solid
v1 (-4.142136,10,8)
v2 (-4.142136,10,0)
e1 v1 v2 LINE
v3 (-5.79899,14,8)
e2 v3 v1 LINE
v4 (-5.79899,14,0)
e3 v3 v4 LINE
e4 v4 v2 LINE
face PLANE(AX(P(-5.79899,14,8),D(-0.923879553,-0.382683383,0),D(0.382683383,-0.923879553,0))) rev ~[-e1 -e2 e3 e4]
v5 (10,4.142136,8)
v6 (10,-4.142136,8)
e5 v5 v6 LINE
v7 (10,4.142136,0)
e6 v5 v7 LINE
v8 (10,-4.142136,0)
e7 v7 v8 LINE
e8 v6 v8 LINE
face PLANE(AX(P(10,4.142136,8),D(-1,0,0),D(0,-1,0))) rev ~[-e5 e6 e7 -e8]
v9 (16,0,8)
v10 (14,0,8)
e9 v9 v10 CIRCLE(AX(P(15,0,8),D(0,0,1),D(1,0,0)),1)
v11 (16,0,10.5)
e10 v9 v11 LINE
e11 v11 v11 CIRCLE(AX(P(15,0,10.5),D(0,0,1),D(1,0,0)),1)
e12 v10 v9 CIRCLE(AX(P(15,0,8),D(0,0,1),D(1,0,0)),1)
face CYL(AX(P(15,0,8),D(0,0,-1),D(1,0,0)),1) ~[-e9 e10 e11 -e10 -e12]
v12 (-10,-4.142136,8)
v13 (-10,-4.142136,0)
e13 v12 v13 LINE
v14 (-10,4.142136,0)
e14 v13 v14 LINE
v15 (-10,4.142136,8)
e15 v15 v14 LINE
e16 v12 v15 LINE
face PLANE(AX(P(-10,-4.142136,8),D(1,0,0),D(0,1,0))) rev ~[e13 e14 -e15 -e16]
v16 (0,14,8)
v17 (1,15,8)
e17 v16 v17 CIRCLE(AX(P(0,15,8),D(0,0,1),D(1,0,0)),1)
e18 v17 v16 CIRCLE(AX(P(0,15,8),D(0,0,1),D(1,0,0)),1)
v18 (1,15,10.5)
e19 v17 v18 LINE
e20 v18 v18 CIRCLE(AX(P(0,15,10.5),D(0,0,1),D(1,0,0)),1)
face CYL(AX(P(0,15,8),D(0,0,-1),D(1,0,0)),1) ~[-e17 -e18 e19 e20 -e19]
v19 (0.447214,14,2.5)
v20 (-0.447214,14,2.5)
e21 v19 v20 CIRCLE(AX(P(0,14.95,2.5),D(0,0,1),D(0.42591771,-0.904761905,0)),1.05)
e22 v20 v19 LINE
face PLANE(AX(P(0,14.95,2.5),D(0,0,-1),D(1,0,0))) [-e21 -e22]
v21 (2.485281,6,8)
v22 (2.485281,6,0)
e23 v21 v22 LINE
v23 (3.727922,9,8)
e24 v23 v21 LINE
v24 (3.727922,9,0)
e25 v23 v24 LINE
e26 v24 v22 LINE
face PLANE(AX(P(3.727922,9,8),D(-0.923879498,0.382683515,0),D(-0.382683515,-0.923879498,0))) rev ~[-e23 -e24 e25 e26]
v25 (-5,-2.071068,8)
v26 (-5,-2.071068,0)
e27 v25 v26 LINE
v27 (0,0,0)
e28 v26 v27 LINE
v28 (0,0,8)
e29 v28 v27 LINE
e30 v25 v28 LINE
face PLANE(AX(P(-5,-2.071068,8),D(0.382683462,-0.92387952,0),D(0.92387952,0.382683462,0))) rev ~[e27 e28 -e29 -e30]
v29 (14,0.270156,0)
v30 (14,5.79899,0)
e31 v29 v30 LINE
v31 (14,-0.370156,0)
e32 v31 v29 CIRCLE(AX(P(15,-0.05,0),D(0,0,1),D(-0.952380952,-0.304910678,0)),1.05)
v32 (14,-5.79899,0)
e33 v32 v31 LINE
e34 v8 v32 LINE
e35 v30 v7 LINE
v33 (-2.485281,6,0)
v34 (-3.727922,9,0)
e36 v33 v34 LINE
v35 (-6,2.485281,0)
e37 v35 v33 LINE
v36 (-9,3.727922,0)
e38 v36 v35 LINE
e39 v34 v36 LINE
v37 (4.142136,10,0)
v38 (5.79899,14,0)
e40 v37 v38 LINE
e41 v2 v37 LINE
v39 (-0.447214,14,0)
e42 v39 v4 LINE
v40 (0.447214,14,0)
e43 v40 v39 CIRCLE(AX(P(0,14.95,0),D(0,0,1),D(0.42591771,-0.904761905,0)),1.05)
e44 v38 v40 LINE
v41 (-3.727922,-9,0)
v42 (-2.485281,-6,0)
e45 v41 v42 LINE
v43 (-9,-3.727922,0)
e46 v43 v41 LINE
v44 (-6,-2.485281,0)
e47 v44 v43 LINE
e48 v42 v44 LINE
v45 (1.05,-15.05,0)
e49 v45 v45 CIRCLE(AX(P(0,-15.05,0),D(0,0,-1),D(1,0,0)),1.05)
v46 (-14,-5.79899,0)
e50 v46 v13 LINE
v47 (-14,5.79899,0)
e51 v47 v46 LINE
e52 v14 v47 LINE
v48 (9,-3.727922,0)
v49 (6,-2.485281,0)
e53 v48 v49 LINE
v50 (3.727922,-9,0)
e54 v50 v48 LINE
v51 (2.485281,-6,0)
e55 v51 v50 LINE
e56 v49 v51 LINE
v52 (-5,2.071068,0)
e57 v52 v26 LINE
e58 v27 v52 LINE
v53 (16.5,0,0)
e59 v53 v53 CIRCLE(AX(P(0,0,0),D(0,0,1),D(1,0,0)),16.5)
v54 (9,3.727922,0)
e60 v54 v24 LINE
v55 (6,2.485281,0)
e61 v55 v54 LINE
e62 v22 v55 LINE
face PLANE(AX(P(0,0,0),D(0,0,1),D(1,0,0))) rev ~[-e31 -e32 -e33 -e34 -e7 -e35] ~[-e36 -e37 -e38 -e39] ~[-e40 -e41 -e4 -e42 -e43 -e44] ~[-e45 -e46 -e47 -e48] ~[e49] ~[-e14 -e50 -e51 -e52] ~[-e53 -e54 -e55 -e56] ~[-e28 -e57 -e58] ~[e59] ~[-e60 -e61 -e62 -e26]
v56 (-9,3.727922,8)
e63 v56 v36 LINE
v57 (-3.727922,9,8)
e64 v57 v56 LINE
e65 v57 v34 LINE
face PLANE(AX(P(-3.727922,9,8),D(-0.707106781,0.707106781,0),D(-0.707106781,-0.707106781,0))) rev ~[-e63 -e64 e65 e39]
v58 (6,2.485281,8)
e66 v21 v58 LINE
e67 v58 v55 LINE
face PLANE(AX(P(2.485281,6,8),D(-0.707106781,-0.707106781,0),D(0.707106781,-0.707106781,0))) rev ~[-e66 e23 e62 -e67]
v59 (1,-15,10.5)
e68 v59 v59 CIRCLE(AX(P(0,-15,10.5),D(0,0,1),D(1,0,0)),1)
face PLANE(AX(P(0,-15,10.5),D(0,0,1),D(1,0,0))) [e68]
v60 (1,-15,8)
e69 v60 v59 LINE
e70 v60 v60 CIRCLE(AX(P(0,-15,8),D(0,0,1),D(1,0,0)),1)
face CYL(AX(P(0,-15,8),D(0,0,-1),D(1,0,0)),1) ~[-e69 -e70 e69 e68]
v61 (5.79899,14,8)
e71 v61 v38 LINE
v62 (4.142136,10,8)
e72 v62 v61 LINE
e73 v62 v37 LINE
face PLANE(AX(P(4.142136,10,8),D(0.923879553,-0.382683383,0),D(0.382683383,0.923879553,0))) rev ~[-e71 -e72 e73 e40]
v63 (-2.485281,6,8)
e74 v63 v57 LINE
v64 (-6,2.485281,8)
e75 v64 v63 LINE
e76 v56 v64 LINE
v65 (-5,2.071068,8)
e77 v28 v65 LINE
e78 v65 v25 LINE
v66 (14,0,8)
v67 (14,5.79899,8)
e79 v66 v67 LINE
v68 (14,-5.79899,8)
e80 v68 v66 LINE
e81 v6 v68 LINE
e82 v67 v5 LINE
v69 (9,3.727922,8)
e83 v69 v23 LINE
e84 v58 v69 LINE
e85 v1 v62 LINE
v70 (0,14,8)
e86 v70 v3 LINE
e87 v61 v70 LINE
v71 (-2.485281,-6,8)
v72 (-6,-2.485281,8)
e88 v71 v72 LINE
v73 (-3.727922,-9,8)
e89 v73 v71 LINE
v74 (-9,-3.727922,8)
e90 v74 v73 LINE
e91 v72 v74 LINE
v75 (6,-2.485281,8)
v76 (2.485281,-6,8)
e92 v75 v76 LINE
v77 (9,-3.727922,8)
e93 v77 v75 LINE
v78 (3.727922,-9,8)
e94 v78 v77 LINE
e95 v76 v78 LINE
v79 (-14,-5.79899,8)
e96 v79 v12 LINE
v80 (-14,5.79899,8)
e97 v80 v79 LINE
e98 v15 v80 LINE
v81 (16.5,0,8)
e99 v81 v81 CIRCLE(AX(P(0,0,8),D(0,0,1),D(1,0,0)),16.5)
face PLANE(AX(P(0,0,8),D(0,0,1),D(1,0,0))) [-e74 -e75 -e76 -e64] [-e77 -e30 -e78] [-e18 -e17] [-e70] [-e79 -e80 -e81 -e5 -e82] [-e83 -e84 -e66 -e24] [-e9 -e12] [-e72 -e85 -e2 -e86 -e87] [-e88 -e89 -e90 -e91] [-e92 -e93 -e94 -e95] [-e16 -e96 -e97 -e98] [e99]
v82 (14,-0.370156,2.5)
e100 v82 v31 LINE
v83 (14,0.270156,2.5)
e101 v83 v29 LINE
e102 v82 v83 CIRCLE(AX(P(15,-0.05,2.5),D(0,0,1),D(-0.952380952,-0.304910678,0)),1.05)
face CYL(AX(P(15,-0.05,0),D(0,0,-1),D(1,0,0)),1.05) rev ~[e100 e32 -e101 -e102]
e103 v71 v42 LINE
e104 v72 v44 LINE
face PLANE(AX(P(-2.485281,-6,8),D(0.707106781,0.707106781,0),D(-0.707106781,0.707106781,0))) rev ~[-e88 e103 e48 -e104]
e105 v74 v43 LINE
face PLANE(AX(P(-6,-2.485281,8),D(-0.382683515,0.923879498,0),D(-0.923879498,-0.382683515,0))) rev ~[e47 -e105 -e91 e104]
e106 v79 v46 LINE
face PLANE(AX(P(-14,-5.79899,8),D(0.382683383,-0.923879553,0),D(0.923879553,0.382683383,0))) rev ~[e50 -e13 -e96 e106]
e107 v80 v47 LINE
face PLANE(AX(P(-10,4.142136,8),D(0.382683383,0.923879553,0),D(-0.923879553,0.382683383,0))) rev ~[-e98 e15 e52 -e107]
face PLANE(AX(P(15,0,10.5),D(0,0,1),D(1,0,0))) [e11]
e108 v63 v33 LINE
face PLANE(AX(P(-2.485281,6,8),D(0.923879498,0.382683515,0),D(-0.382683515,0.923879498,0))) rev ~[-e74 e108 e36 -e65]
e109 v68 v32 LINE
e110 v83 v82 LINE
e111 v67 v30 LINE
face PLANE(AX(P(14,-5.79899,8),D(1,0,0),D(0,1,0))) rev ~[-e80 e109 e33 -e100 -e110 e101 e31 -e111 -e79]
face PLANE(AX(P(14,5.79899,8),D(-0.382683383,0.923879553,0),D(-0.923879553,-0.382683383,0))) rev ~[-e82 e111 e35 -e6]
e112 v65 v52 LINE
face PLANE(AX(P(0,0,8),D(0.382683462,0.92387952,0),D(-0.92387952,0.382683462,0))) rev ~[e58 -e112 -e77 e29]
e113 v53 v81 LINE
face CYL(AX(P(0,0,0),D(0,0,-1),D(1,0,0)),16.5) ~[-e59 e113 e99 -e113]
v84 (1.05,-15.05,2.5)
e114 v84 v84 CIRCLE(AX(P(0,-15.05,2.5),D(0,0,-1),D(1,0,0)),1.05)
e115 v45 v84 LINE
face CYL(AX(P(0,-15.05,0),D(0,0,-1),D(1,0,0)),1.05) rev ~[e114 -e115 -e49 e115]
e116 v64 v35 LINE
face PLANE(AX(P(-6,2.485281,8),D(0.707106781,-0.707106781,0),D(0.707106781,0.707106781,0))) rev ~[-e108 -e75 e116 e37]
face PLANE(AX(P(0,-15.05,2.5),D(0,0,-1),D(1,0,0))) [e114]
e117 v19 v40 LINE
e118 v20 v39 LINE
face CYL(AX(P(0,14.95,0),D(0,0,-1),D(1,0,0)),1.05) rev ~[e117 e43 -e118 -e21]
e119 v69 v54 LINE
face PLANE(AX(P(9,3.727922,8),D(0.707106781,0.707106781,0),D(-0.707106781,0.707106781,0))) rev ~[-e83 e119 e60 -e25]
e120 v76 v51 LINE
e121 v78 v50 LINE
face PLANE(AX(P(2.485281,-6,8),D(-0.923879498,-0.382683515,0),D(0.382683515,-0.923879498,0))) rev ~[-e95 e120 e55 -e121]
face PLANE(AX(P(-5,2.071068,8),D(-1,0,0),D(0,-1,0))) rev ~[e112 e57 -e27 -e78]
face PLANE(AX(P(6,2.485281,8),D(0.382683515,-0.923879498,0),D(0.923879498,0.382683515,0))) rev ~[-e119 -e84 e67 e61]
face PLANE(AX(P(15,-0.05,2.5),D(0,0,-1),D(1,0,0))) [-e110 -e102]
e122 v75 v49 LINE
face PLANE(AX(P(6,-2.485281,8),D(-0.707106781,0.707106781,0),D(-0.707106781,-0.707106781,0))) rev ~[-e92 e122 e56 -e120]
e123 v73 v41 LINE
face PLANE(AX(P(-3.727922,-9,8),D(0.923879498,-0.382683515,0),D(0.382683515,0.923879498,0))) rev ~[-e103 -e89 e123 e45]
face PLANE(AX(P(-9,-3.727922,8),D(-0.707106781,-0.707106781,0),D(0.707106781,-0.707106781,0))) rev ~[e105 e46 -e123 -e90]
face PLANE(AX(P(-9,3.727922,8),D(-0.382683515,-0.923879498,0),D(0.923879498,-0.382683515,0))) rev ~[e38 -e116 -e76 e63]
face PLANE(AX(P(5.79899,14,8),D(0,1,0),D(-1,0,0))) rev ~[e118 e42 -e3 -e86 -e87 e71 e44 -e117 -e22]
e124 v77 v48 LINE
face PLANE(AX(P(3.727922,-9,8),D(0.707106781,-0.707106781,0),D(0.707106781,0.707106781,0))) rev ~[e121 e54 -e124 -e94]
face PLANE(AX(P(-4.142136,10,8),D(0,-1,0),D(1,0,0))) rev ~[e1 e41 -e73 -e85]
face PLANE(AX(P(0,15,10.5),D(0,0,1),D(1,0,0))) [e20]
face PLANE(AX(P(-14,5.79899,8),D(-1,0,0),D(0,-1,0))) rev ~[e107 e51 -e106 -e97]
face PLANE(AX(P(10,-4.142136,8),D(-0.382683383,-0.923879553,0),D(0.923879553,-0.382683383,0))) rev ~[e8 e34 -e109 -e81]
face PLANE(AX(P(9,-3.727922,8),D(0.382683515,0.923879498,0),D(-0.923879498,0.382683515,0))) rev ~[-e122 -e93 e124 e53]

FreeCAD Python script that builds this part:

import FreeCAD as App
import Part
import Sketcher

V = App.Vector
Q = App.Units.Quantity


def add_polygon(sketch, points):
    """Adds a closed chain of lines whose ends are joined by coincident constraints."""
    first, n = sketch.GeometryCount, len(points)
    for a, b in zip(points, points[1:] + points[:1]):
        sketch.addGeometry(Part.LineSegment(App.Vector(*a, 0), App.Vector(*b, 0)), False)
    for i in range(n):
        sketch.addConstraint(Sketcher.Constraint("Coincident", first + i, 2, first + (i + 1) % n, 1))

doc = App.newDocument("Part")
params = doc.addObject("Spreadsheet::Sheet", "Params")
for row, (alias, value) in enumerate([
    ("sketch1_diameter", "33 mm"),
    ("pad1_length", "8 mm"),
    ("sketch2_diameter", "2.1 mm"),
    ("pocket1_length", "2.5 mm"),
    ("sketch3_diameter", "2 mm"),
    ("pad2_length", "2.5 mm"),
    ("pocket2_length", "25 mm"),
], start=1):
    params.set(f"A{row}", alias)
    params.set(f"B{row}", "=" + value)
    params.setAlias(f"B{row}", alias)

body = doc.addObject("PartDesign::Body", "Body")

# Sketch on XY plane
sketch1 = body.newObject("Sketcher::SketchObject", "Sketch")
sketch1.AttachmentSupport = (doc.getObject("XY_Plane"), [""])
sketch1.MapMode = "FlatFace"
sketch1.addGeometry(Part.Circle(V(0, 0, 0), V(0, 0, 1), 16.5), False)
sketch1.addConstraint([
    Sketcher.Constraint("Coincident", 0, 3, -1, 1),
    Sketcher.Constraint("Diameter", 0, Q("33 mm")),
])
sketch1.setExpression("Constraints[1]", "Params.sketch1_diameter")
pad1 = body.newObject("PartDesign::Pad", "Pad")
pad1.Profile = sketch1
pad1.setExpression("Length", "Params.pad1_length")

# Sketch on XY plane
sketch2 = body.newObject("Sketcher::SketchObject", "Sketch001")
sketch2.AttachmentSupport = (doc.getObject("XY_Plane"), [""])
sketch2.MapMode = "FlatFace"
sketch2.addGeometry([
    Part.Circle(V(0, -15.05, 0), V(0, 0, 1), 1.05),
    Part.Circle(V(15, -0.05, 0), V(0, 0, 1), 1.05),
    Part.Circle(V(0, 14.95, 0), V(0, 0, 1), 1.05),
], False)
sketch2.addConstraint([
    Sketcher.Constraint("Equal", 0, 1),
    Sketcher.Constraint("Equal", 1, 2),
    Sketcher.Constraint("PointOnObject", 0, 3, -2),
    Sketcher.Constraint("PointOnObject", 2, 3, -2),
    Sketcher.Constraint("Diameter", 0, Q("2.1 mm")),
    Sketcher.Constraint("DistanceX", -1, 1, 1, 3, Q("15 mm")),
    Sketcher.Constraint("DistanceY", 0, 3, 1, 3, Q("15 mm")),
    Sketcher.Constraint("DistanceY", 1, 3, 2, 3, Q("15 mm")),
    Sketcher.Constraint("DistanceY", 0, 3, -1, 1, Q("15.05 mm")),
])
sketch2.setExpression("Constraints[4]", "Params.sketch2_diameter")
pocket1 = body.newObject("PartDesign::Pocket", "Pocket")
pocket1.Profile = sketch2
pocket1.setExpression("Length", "Params.pocket1_length")
pocket1.Reversed = True

# Sketch on XY plane
sketch3 = body.newObject("Sketcher::SketchObject", "Sketch002")
sketch3.AttachmentSupport = (doc.getObject("XY_Plane"), [""])
sketch3.MapMode = "FlatFace"
sketch3.AttachmentOffset = App.Placement(V(0, 0, 8), App.Rotation())
sketch3.addGeometry([
    Part.Circle(V(0, 15, 0), V(0, 0, 1), 1),
    Part.Circle(V(15, 0, 0), V(0, 0, 1), 1),
    Part.Circle(V(0, -15, 0), V(0, 0, 1), 1),
], False)
sketch3.addConstraint([
    Sketcher.Constraint("Equal", 0, 1),
    Sketcher.Constraint("Equal", 1, 2),
    Sketcher.Constraint("Symmetric", 0, 3, 2, 3, -1, 1),
    Sketcher.Constraint("PointOnObject", 0, 3, -2),
    Sketcher.Constraint("PointOnObject", 1, 3, -1),
    Sketcher.Constraint("Diameter", 0, Q("2 mm")),
    Sketcher.Constraint("DistanceY", -1, 1, 0, 3, Q("15 mm")),
    Sketcher.Constraint("DistanceX", -1, 1, 1, 3, Q("15 mm")),
])
sketch3.setExpression("Constraints[5]", "Params.sketch3_diameter")
pad2 = body.newObject("PartDesign::Pad", "Pad001")
pad2.Profile = sketch3
pad2.setExpression("Length", "Params.pad2_length")

# Sketch on XY plane
sketch4 = body.newObject("Sketcher::SketchObject", "Sketch003")
sketch4.AttachmentSupport = (doc.getObject("XY_Plane"), [""])
sketch4.MapMode = "FlatFace"
sketch4.AttachmentOffset = App.Placement(V(0, 0, 8), App.Rotation())
add_polygon(sketch4, [(-14, 5.79899), (-14, -5.79899), (-10, -4.142136), (-10, 4.142136)])  # lines 0-3
add_polygon(sketch4, [(4.142136, 10), (5.79899, 14), (-5.79899, 14), (-4.142136, 10)])  # lines 4-7
add_polygon(sketch4, [(10, -4.142136), (14, -5.79899), (14, 5.79899), (10, 4.142136)])  # lines 8-11
add_polygon(sketch4, [(-9, -3.727922), (-3.727922, -9), (-2.485281, -6), (-6, -2.485281)])  # lines 12-15
add_polygon(sketch4, [(3.727922, -9), (9, -3.727922), (6, -2.485281), (2.485281, -6)])  # lines 16-19
add_polygon(sketch4, [(-2.485281, 6), (-3.727922, 9), (-9, 3.727922), (-6, 2.485281)])  # lines 20-23
add_polygon(sketch4, [(6, 2.485281), (9, 3.727922), (3.727922, 9), (2.485281, 6)])  # lines 24-27
add_polygon(sketch4, [(-5, -2.071068), (0, 0), (-5, 2.071068)])  # lines 28-30
sketch4.addConstraint([
    Sketcher.Constraint("Vertical", 0),
    Sketcher.Constraint("Vertical", 2),
    Sketcher.Constraint("Horizontal", 5),
    Sketcher.Constraint("Horizontal", 7),
    Sketcher.Constraint("Vertical", 9),
    Sketcher.Constraint("Vertical", 11),
    Sketcher.Constraint("Vertical", 30),
    Sketcher.Constraint("Coincident", 28, 2, -1, 1),
    Sketcher.Constraint("Symmetric", 3, 2, 8, 2, -1, 1),
    Sketcher.Constraint("Symmetric", 1, 2, 10, 2, -1, 1),
    Sketcher.Constraint("Symmetric", 19, 2, 20, 2, -1, 1),
    Sketcher.Constraint("Symmetric", 16, 2, 21, 2, -1, 1),
    Sketcher.Constraint("Symmetric", 17, 2, 22, 2, -1, 1),
    Sketcher.Constraint("Symmetric", 18, 2, 23, 2, -1, 1),
    Sketcher.Constraint("Symmetric", 15, 2, 24, 2, -1, 1),
    Sketcher.Constraint("Symmetric", 12, 2, 25, 2, -1, 1),
    Sketcher.Constraint("Symmetric", 13, 2, 26, 2, -1, 1),
    Sketcher.Constraint("Symmetric", 14, 2, 27, 2, -1, 1),
    Sketcher.Constraint("Symmetric", 15, 2, 16, 2, -2),
    Sketcher.Constraint("Symmetric", 14, 2, 17, 2, -2),
    Sketcher.Constraint("Symmetric", 13, 2, 18, 2, -2),
    Sketcher.Constraint("Symmetric", 12, 2, 19, 2, -2),
    Sketcher.Constraint("Perpendicular", 3, 4),
    Sketcher.Constraint("Perpendicular", 1, 6),
    Sketcher.Constraint("Perpendicular", 4, 8),
    Sketcher.Constraint("Perpendicular", 6, 10),
    Sketcher.Constraint("Perpendicular", 8, 13),
    Sketcher.Constraint("Parallel", 12, 14),
    Sketcher.Constraint("Parallel", 10, 15),
    Sketcher.Constraint("Perpendicular", 14, 16),
    Sketcher.Constraint("Perpendicular", 13, 17),
    Sketcher.Constraint("Parallel", 24, 28),
    Sketcher.Constraint("Perpendicular", 26, 29),
    Sketcher.Constraint("Horizontal", 0, 2, 8, 2),
    Sketcher.Constraint("Equal", 5, 0),
    Sketcher.Constraint("Equal", 7, 2),
    Sketcher.Constraint("DistanceX", 0, 2, -1, 1, Q("14 mm")),
    Sketcher.Constraint("DistanceX", 1, 2, -1, 1, Q("10 mm")),
    Sketcher.Constraint("DistanceY", -1, 1, 4, 2, Q("14 mm")),
    Sketcher.Constraint("DistanceY", 12, 2, -1, 1, Q("9 mm")),
    Sketcher.Constraint("DistanceY", 13, 2, -1, 1, Q("6 mm")),
    Sketcher.Constraint("DistanceX", 14, 2, -1, 1, Q("6 mm")),
    Sketcher.Constraint("DistanceX", 29, 2, -1, 1, Q("5 mm")),
    Sketcher.Constraint("Angle", 1, Q("22.499997 deg")),
    Sketcher.Constraint("DistanceX", 5, 2, 5, 1, Q("11.59798 mm")),
    Sketcher.Constraint("DistanceX", -1, 1, 4, 2, Q("5.79899 mm")),
    Sketcher.Constraint("DistanceX", 12, 2, -1, 1, Q("3.727922 mm")),
])
pocket2 = body.newObject("PartDesign::Pocket", "Pocket001")
pocket2.Profile = sketch4
pocket2.setExpression("Length", "Params.pocket2_length")

doc.recompute()
